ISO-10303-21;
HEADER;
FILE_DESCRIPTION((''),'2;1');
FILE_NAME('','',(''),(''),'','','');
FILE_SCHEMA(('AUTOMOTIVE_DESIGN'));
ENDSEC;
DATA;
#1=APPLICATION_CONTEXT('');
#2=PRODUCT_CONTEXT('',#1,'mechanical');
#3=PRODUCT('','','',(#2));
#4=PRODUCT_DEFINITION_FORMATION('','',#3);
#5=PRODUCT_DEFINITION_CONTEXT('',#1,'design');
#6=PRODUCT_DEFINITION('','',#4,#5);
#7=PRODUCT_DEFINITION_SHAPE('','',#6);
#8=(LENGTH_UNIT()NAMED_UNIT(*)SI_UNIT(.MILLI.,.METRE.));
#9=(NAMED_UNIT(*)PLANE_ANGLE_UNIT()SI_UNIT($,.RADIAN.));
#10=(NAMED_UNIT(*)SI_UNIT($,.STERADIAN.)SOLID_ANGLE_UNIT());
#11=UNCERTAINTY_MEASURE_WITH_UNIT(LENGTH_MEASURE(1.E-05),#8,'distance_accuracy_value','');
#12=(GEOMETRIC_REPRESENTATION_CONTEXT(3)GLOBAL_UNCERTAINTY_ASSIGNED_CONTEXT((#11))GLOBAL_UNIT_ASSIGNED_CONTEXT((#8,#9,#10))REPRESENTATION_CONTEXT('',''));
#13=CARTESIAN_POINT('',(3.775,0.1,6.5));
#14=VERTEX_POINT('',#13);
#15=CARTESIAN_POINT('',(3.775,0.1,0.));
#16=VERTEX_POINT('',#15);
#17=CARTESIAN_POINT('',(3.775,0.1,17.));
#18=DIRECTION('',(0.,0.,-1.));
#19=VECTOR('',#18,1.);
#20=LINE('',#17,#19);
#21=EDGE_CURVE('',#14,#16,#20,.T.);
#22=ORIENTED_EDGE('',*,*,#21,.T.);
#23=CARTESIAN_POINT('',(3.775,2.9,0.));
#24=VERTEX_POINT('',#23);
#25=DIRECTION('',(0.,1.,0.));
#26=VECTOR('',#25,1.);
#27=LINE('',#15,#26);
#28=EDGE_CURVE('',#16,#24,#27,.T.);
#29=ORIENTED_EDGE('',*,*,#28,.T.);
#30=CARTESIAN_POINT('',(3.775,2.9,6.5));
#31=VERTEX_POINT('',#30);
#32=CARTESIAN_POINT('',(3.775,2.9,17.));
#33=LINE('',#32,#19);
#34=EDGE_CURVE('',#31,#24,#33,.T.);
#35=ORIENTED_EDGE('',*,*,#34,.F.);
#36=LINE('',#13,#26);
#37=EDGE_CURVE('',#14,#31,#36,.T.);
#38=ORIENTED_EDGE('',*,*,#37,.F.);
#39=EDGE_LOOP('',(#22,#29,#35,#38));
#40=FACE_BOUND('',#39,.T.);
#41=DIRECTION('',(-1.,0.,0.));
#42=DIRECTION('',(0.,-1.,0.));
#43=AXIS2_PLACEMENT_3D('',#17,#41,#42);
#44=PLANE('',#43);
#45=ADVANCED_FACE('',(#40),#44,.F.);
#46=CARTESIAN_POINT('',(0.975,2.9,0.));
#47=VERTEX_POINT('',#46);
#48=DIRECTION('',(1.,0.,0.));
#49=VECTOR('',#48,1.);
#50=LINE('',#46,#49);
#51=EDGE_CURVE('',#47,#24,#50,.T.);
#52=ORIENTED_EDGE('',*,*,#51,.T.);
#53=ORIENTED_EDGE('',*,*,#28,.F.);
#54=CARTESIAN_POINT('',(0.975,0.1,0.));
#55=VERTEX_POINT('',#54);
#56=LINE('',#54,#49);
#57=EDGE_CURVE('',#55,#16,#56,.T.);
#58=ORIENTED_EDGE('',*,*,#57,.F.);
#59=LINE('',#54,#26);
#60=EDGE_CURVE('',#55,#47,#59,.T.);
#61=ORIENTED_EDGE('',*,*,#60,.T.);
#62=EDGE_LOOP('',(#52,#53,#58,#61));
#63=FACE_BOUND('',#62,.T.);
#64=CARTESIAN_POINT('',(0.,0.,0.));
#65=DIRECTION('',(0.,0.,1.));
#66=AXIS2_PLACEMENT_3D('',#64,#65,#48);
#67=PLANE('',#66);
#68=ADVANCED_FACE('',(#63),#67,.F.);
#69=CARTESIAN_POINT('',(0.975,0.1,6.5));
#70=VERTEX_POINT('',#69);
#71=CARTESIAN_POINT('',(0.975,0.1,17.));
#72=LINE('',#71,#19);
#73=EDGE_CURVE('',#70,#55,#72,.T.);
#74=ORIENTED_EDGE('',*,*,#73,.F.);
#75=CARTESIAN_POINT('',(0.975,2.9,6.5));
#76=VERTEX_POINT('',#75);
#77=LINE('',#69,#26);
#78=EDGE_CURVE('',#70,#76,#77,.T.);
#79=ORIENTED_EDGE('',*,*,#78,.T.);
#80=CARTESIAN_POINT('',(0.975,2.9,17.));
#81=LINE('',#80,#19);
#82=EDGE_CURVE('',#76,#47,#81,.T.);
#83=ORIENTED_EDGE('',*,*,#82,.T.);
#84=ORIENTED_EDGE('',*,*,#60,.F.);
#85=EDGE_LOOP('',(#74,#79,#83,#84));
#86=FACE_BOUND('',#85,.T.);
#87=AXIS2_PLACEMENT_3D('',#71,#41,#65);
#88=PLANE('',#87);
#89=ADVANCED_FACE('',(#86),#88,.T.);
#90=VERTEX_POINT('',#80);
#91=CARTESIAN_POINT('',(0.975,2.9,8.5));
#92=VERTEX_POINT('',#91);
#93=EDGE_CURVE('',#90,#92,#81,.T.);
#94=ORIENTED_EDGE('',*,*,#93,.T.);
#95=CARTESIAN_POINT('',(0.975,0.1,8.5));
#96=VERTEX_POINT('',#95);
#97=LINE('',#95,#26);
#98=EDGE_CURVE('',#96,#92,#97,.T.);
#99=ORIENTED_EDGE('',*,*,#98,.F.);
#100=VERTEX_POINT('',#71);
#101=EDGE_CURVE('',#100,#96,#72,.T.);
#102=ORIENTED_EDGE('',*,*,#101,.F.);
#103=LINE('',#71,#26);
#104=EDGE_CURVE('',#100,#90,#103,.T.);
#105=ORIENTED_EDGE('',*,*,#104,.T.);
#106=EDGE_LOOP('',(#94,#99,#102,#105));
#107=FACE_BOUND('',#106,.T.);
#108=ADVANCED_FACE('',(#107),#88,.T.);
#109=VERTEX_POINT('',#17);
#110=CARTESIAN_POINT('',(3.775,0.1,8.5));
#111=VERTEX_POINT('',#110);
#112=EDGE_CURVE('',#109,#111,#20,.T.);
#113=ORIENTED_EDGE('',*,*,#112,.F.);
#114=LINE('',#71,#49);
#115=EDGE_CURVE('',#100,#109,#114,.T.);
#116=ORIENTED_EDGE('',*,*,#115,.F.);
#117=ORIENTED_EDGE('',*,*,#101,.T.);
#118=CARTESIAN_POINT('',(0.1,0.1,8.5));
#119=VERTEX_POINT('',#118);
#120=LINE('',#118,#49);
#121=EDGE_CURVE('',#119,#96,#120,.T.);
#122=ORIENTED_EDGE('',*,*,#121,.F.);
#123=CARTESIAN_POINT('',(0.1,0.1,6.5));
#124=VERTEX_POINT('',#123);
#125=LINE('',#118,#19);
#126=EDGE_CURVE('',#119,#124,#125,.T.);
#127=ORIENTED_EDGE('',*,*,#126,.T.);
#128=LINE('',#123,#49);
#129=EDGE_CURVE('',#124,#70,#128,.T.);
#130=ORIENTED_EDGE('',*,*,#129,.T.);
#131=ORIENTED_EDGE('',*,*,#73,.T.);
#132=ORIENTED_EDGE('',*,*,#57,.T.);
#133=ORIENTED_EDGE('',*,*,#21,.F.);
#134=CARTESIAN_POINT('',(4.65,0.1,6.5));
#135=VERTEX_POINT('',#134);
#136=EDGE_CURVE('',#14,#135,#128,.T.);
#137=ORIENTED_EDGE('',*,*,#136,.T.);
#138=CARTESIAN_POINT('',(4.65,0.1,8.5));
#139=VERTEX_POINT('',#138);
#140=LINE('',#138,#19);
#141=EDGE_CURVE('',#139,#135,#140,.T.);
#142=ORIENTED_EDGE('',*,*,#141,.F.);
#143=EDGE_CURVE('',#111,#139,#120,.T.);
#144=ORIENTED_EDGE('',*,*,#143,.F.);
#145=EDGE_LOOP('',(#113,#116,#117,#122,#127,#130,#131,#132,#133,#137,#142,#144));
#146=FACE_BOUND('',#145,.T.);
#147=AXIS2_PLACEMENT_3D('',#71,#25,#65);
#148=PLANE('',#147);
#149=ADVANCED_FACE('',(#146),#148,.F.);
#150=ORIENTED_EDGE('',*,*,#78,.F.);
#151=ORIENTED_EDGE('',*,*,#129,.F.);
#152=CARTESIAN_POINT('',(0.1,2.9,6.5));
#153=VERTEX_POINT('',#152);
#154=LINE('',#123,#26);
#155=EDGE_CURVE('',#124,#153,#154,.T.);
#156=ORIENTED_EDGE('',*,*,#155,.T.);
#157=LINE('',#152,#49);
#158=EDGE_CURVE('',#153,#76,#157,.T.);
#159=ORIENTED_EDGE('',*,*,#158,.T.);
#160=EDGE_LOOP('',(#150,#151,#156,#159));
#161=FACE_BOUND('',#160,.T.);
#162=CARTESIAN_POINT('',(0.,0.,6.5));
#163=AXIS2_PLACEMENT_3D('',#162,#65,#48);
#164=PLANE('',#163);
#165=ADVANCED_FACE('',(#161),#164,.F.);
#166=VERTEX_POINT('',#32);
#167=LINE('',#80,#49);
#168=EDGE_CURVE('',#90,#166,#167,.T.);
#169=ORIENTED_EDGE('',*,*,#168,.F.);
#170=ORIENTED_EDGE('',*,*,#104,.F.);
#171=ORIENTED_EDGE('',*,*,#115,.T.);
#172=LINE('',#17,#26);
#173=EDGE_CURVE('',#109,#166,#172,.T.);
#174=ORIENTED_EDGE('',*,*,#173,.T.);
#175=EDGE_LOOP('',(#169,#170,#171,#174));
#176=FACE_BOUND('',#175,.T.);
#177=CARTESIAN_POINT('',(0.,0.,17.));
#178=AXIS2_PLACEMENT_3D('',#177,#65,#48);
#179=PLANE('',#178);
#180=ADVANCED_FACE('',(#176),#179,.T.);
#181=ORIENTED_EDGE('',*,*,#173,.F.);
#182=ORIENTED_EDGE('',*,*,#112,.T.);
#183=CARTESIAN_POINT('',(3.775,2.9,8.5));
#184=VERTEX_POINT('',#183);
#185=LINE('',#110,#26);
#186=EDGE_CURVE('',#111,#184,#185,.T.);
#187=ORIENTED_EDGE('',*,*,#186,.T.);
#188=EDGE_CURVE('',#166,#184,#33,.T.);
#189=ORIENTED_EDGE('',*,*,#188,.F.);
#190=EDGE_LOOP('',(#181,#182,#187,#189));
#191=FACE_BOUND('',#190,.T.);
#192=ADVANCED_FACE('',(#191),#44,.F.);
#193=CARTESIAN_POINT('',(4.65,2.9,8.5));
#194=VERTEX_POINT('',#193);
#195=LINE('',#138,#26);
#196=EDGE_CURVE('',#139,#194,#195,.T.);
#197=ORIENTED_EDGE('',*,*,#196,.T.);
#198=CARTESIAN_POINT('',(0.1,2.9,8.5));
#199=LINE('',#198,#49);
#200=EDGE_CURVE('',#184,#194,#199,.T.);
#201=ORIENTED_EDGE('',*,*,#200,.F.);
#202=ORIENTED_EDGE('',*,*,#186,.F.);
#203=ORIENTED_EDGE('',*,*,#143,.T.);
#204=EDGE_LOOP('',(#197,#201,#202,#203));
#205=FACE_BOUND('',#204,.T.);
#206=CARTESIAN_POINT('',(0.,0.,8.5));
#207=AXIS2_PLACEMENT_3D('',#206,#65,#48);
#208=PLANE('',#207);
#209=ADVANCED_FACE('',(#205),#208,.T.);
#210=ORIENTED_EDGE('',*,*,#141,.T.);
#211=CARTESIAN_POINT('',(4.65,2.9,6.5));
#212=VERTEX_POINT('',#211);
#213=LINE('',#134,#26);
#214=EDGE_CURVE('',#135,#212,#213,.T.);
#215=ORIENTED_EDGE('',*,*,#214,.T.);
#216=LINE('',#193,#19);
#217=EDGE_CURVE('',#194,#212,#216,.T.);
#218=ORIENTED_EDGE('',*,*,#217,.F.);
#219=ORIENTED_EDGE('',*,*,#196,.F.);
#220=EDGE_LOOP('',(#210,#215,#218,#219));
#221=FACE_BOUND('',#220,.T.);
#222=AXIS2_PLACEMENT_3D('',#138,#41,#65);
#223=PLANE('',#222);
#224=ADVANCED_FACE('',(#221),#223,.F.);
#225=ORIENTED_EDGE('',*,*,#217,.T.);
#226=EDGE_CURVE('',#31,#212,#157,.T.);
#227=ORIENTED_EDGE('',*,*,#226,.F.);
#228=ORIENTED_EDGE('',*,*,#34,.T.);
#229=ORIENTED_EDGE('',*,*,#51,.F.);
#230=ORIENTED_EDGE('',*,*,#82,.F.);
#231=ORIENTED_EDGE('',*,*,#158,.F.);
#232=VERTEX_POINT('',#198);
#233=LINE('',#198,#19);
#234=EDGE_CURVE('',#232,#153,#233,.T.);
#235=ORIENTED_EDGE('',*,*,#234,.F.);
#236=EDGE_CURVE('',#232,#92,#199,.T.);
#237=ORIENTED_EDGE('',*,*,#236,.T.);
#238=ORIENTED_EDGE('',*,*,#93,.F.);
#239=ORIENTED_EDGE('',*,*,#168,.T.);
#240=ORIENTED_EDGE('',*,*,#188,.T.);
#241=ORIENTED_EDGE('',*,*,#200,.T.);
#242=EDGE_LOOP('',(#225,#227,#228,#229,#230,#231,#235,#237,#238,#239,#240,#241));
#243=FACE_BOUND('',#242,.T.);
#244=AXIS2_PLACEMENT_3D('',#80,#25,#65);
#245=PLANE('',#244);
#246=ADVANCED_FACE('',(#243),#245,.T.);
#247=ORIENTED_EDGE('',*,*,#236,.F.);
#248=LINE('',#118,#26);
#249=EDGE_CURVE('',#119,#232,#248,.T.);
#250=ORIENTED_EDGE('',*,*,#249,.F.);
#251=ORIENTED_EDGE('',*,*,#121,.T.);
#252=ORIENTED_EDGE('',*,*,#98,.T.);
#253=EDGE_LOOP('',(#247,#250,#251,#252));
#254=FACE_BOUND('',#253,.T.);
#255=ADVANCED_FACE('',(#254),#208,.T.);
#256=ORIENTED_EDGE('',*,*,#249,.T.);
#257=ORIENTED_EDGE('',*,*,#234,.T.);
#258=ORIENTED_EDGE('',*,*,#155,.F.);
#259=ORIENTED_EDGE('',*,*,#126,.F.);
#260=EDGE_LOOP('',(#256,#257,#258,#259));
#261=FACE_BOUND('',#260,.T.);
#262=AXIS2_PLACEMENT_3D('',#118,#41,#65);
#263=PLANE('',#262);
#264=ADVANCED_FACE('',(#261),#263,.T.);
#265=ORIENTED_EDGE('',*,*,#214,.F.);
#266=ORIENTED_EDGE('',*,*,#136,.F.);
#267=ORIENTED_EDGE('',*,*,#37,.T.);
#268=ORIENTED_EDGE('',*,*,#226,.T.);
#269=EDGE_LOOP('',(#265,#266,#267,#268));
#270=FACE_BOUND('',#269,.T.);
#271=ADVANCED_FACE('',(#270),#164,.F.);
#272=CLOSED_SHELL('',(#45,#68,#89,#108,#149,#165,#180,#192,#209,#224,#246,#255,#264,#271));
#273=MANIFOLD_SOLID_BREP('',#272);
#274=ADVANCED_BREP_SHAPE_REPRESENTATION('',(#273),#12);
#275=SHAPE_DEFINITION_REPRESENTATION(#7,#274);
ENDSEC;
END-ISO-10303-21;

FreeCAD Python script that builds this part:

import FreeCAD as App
import Part
import Sketcher

V = App.Vector

doc = App.newDocument("Part")
params = doc.addObject("Spreadsheet::Sheet", "Params")
for row, (alias, value) in enumerate([
    ("sketch1_width", "2.8 mm"),
    ("pad1_length", "17 mm"),
    ("sketch2_height", "2.8 mm"),
    ("sketch2_width", "4.55 mm"),
    ("pad2_length", "2 mm"),
], start=1):
    params.set(f"A{row}", alias)
    params.set(f"B{row}", "=" + value)
    params.setAlias(f"B{row}", alias)

body = doc.addObject("PartDesign::Body", "Body")

sketch1 = body.newObject("Sketcher::SketchObject", "Sketch")
sketch1.AttachmentSupport = (doc.getObject("XY_Plane"), [""])
sketch1.MapMode = "FlatFace"
sketch1.addGeometry([
    Part.LineSegment(V(1, 2.9, 0), V(1, 0.1, 0)),
    Part.LineSegment(V(1, 0.1, 0), V(3.8, 0.1, 0)),
    Part.LineSegment(V(3.8, 0.1, 0), V(3.8, 2.9, 0)),
    Part.LineSegment(V(3.8, 2.9, 0), V(1, 2.9, 0)),
], False)
sketch1.addConstraint([
    Sketcher.Constraint("Coincident", 0, 2, 1, 1),
    Sketcher.Constraint("Coincident", 1, 2, 2, 1),
    Sketcher.Constraint("Coincident", 2, 2, 3, 1),
    Sketcher.Constraint("Coincident", 3, 2, 0, 1),
    Sketcher.Constraint("Vertical", 0),
    Sketcher.Constraint("Horizontal", 1),
    Sketcher.Constraint("Vertical", 2),
    Sketcher.Constraint("Horizontal", 3),
    Sketcher.Constraint("Equal", 3, 0),
    Sketcher.Constraint("DistanceX", 1, 1, 1, 2, 2.8),
    Sketcher.Constraint("DistanceY", -1, 1, 0, 2, 0.1),
    Sketcher.Constraint("DistanceX", -1, 1, 0, 2, 0.975),
])
sketch1.setExpression("Constraints[9]", "Params.sketch1_width")
pad1 = body.newObject("PartDesign::Pad", "Pad")
pad1.Profile = sketch1
pad1.setExpression("Length", "Params.pad1_length")

sketch2 = body.newObject("Sketcher::SketchObject", "Sketch001")
sketch2.AttachmentSupport = (doc.getObject("XY_Plane"), [""])
sketch2.MapMode = "FlatFace"
sketch2.AttachmentOffset = App.Placement(V(0, 0, 6.5), App.Rotation())
sketch2.addGeometry([
    Part.LineSegment(V(0.1, 2.9, 0), V(0.1, 0.1, 0)),
    Part.LineSegment(V(0.1, 0.1, 0), V(4.7, 0.1, 0)),
    Part.LineSegment(V(4.7, 0.1, 0), V(4.7, 2.9, 0)),
    Part.LineSegment(V(4.7, 2.9, 0), V(0.1, 2.9, 0)),
], False)
sketch2.addConstraint([
    Sketcher.Constraint("Coincident", 0, 2, 1, 1),
    Sketcher.Constraint("Coincident", 1, 2, 2, 1),
    Sketcher.Constraint("Coincident", 2, 2, 3, 1),
    Sketcher.Constraint("Coincident", 3, 2, 0, 1),
    Sketcher.Constraint("Vertical", 0),
    Sketcher.Constraint("Horizontal", 1),
    Sketcher.Constraint("Vertical", 2),
    Sketcher.Constraint("Horizontal", 3),
    Sketcher.Constraint("DistanceY", 0, 2, 0, 1, 2.8),
    Sketcher.Constraint("DistanceX", 1, 1, 1, 2, 4.55),
    Sketcher.Constraint("DistanceX", -1, 1, 0, 2, 0.1),
    Sketcher.Constraint("DistanceY", -1, 1, 0, 2, 0.1),
])
sketch2.setExpression("Constraints[8]", "Params.sketch2_height")
sketch2.setExpression("Constraints[9]", "Params.sketch2_width")
pad2 = body.newObject("PartDesign::Pad", "Pad001")
pad2.Profile = sketch2
pad2.setExpression("Length", "Params.pad2_length")

doc.recompute()
